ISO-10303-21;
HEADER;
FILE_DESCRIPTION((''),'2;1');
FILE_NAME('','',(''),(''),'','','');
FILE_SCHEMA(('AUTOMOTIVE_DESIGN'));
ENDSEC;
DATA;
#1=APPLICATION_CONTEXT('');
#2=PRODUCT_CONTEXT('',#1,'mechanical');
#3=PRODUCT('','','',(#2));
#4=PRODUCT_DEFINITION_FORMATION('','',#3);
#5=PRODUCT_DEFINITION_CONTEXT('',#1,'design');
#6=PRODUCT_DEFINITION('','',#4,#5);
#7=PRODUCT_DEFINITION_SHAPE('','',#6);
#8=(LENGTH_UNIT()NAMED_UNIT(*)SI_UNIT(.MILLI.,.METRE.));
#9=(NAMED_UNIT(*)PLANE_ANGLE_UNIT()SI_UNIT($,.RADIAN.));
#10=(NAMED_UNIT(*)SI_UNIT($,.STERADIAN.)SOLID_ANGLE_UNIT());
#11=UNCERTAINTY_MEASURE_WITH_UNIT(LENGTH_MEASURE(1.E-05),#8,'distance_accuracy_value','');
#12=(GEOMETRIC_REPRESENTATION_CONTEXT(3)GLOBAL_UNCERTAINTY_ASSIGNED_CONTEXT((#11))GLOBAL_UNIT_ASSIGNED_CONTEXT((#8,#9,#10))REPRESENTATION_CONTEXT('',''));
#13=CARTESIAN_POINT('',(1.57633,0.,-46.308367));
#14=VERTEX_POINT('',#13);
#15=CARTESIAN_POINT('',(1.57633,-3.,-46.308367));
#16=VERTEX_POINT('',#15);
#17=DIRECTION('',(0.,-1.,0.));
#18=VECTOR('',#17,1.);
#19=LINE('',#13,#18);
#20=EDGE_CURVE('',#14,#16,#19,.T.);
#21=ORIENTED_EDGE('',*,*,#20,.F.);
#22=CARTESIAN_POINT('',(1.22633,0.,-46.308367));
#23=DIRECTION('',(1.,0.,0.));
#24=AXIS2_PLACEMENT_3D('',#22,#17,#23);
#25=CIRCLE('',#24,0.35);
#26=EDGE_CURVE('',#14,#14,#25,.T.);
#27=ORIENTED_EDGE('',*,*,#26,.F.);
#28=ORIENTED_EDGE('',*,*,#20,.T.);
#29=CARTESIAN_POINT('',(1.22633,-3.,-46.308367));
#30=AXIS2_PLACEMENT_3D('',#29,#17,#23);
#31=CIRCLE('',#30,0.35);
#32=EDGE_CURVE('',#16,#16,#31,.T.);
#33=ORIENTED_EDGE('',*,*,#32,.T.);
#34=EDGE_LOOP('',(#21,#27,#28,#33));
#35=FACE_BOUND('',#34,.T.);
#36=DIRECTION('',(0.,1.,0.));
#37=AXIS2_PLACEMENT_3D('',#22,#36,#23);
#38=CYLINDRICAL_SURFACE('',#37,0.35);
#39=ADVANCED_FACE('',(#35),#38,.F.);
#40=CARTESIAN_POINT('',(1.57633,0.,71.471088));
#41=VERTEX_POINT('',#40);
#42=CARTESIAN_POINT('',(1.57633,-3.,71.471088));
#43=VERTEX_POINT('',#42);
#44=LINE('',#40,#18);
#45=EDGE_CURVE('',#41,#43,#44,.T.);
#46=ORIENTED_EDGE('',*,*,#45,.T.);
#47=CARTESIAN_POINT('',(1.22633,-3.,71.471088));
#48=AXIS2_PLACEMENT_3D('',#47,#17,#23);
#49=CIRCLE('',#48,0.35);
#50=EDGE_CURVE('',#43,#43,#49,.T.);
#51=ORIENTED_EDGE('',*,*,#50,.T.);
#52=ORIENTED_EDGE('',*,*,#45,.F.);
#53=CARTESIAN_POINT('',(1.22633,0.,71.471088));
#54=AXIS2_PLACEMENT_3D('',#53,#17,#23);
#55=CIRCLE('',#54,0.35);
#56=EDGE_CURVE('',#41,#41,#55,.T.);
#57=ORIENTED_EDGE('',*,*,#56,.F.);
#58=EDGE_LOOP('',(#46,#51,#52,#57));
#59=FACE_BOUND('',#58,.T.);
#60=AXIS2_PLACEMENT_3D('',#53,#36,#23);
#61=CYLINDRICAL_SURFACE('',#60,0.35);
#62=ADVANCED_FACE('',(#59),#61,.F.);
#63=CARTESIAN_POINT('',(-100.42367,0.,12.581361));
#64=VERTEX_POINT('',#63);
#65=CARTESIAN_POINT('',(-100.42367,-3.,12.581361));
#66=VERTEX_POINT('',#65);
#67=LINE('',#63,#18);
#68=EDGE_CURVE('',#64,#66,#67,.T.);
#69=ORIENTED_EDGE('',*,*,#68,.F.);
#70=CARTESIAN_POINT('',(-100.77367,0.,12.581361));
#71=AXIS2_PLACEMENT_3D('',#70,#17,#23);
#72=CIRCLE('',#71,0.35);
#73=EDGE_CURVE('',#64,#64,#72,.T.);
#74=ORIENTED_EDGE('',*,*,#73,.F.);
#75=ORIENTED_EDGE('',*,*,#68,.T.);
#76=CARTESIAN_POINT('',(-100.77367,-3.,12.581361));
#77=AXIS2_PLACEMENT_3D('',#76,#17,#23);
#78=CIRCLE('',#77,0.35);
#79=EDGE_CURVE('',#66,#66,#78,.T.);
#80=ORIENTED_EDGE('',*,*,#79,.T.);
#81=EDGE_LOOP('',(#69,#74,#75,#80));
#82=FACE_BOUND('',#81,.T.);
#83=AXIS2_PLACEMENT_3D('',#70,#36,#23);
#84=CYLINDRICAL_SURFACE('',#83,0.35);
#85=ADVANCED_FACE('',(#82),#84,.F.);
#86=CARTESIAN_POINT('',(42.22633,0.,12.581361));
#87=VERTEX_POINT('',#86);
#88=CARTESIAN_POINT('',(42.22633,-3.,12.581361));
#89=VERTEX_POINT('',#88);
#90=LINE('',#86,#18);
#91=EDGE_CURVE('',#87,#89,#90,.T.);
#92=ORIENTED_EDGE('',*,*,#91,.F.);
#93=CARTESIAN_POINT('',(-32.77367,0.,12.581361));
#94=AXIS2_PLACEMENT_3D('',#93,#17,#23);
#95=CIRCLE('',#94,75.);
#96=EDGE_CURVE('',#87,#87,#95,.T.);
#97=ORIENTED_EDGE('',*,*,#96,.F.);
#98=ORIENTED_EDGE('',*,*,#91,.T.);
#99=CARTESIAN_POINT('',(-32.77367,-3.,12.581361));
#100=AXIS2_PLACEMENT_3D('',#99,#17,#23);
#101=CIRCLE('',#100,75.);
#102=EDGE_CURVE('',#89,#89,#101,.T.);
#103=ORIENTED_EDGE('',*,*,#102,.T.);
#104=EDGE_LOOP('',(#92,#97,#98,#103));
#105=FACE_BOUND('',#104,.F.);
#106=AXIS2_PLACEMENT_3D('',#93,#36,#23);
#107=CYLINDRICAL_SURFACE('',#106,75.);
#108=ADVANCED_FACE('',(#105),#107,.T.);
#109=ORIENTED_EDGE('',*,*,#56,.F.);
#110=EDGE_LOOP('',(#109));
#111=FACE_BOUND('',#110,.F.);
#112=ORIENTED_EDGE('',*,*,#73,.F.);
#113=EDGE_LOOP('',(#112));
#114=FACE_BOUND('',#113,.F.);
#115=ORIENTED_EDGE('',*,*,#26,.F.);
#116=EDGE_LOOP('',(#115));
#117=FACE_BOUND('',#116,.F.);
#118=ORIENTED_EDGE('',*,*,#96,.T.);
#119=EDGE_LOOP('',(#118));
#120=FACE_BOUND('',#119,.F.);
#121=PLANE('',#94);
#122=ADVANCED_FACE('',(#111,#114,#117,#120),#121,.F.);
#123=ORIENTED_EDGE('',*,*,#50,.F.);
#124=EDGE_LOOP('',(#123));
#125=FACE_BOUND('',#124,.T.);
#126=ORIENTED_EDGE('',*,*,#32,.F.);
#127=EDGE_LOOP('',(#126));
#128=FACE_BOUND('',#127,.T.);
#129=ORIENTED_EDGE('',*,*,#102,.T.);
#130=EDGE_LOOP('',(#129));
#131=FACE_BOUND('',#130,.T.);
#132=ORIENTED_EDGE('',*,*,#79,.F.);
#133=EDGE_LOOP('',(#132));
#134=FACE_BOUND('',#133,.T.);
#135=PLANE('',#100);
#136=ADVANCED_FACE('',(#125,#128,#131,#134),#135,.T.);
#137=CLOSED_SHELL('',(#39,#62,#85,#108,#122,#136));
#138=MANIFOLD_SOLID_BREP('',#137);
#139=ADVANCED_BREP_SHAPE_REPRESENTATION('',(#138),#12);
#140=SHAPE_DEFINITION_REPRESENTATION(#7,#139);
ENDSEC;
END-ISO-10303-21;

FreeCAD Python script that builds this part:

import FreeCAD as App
import Part
import Sketcher

V = App.Vector

doc = App.newDocument("Part")
body = doc.addObject("PartDesign::Body", "Body")

# Sketch on XZ plane
sketch1 = doc.addObject("Sketcher::SketchObject", "Sketch")
body.addObject(sketch1)
sketch1.AttachmentSupport = (doc.XZ_Plane, [""])
sketch1.MapMode = "FlatFace"
sketch1.addGeometry([
    Part.Circle(V(-32.77, 12.58, 0), V(0, 0, 1), 75),
    Part.Circle(V(1.23, -46.31, 0), V(0, 0, 1), 0.35),
    Part.Circle(V(-100.77, 12.58, 0), V(0, 0, 1), 0.35),
    Part.Circle(V(1.23, 71.47, 0), V(0, 0, 1), 0.35),
], False)
sketch1.addConstraint([
    Sketcher.Constraint("Equal", 1, 2),
    Sketcher.Constraint("Equal", 2, 3),
    Sketcher.Constraint("Horizontal", 0, 3, 2, 3),
    Sketcher.Constraint("Vertical", 1, 3, 3, 3),
    Sketcher.Constraint("Diameter", 0, 150.0),
    Sketcher.Constraint("Diameter", 1, 0.7),
    Sketcher.Constraint("DistanceX", 0, 3, 1, 3, 34.0),
    Sketcher.Constraint("DistanceX", 2, 3, 0, 3, 68.0),
    Sketcher.Constraint("DistanceX", 0, 3, -1, 1, 32.77367),
    Sketcher.Constraint("DistanceY", -1, 1, 0, 3, 12.581361),
    Sketcher.Constraint("DistanceY", 1, 3, -1, 1, 46.308367),
    Sketcher.Constraint("DistanceY", -1, 1, 3, 3, 71.471088),
])
pad1 = doc.addObject("PartDesign::Pad", "Pad")
body.addObject(pad1)
pad1.Profile = sketch1
pad1.Length = 3

doc.recompute()
